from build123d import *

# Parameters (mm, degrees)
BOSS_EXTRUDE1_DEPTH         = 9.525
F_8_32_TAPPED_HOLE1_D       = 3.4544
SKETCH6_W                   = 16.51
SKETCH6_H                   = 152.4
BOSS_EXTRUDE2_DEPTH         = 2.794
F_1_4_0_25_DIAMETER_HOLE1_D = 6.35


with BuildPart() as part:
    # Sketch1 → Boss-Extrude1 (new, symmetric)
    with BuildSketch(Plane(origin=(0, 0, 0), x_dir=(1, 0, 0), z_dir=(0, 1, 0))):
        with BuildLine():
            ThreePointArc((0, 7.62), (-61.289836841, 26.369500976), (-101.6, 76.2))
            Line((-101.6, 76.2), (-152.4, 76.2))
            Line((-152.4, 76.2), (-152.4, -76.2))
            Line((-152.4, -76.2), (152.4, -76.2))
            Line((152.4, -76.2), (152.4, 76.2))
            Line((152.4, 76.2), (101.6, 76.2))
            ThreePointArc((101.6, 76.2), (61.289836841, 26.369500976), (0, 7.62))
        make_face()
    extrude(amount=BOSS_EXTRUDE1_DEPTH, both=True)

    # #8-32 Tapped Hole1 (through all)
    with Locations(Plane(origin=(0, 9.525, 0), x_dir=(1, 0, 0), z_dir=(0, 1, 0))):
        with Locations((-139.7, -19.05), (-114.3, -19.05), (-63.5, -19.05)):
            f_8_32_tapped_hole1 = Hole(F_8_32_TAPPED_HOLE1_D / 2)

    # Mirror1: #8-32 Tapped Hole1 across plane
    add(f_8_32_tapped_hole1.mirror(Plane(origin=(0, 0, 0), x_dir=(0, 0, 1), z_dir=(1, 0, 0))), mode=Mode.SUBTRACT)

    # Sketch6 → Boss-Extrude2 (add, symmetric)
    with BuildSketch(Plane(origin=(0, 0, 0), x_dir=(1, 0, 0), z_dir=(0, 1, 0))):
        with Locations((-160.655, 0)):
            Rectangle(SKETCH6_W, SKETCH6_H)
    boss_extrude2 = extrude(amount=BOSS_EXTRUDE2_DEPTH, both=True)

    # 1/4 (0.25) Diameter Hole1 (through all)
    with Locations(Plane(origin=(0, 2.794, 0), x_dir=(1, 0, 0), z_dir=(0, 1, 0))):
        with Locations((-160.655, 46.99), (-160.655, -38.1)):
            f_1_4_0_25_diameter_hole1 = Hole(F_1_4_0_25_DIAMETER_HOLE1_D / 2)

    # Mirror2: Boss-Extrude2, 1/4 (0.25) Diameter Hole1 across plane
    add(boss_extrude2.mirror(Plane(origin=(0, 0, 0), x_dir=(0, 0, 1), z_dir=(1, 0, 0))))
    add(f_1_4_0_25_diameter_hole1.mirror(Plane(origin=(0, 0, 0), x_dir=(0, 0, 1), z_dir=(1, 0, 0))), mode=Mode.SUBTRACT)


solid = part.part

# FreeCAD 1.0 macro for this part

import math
import FreeCAD as App
import Part
import Sketcher
Q = App.Units.Quantity

doc = App.newDocument("Part")
body = doc.addObject("PartDesign::Body", "Body")

# Sketch on XZ plane
sketch1 = body.newObject("Sketcher::SketchObject", "Sketch")
sketch1.AttachmentSupport = (doc.getObject("XZ_Plane"), [""])
sketch1.MapMode = "FlatFace"
sketch1.addGeometry(Part.ArcOfCircle(Part.Circle(App.Vector(0, -117, 0), App.Vector(0, 0, 1), 110), math.radians(90), math.radians(158)), False)
sketch1.addGeometry(Part.LineSegment(App.Vector(-102, -76, 0), App.Vector(-152, -76, 0)), False)
sketch1.addGeometry(Part.LineSegment(App.Vector(-152, -76, 0), App.Vector(-152, 76, 0)), False)
sketch1.addGeometry(Part.LineSegment(App.Vector(-152, 76, 0), App.Vector(152, 76, 0)), False)
sketch1.addGeometry(Part.LineSegment(App.Vector(152, 76, 0), App.Vector(152, -76, 0)), False)
sketch1.addGeometry(Part.LineSegment(App.Vector(152, -76, 0), App.Vector(102, -76, 0)), False)
sketch1.addGeometry(Part.ArcOfCircle(Part.Circle(App.Vector(0, -117, 0), App.Vector(0, 0, 1), 110), math.radians(22), math.radians(90)), False)
sketch1.addConstraint(Sketcher.Constraint("Coincident", 0, 2, 1, 1))
sketch1.addConstraint(Sketcher.Constraint("Coincident", 1, 2, 2, 1))
sketch1.addConstraint(Sketcher.Constraint("Coincident", 2, 2, 3, 1))
sketch1.addConstraint(Sketcher.Constraint("Coincident", 3, 2, 4, 1))
sketch1.addConstraint(Sketcher.Constraint("Coincident", 4, 2, 5, 1))
sketch1.addConstraint(Sketcher.Constraint("Coincident", 5, 2, 6, 1))
sketch1.addConstraint(Sketcher.Constraint("Tangent", 6, 2, 0, 1))
sketch1.addConstraint(Sketcher.Constraint("Horizontal", 1))
sketch1.addConstraint(Sketcher.Constraint("Vertical", 2))
sketch1.addConstraint(Sketcher.Constraint("Horizontal", 3))
sketch1.addConstraint(Sketcher.Constraint("Vertical", 4))
sketch1.addConstraint(Sketcher.Constraint("Horizontal", 5))
sketch1.addConstraint(Sketcher.Constraint("Equal", 0, 6))
sketch1.addConstraint(Sketcher.Constraint("Symmetric", 1, 2, 3, 2, -1, 1))
sketch1.addConstraint(Sketcher.Constraint("Symmetric", 0, 2, 5, 2, -2))
sketch1.addConstraint(Sketcher.Constraint("PointOnObject", 6, 2, -2))
sketch1.addConstraint(Sketcher.Constraint("DistanceX", 1, 2, 1, 1, Q("2 in")))
sketch1.addConstraint(Sketcher.Constraint("DistanceX", 3, 1, 3, 2, Q("12 in")))
sketch1.addConstraint(Sketcher.Constraint("DistanceY", 2, 1, 2, 2, Q("6 in")))
sketch1.addConstraint(Sketcher.Constraint("DistanceY", 6, 2, -1, 1, Q("0.3 in")))
pad1 = body.newObject("PartDesign::Pad", "Pad")
pad1.Profile = sketch1
pad1.Length = Q("0.75 in")
pad1.Midplane = True

# Sketch on XZ plane
sketch2 = body.newObject("Sketcher::SketchObject", "Sketch001")
sketch2.AttachmentSupport = (doc.getObject("XZ_Plane"), [""])
sketch2.MapMode = "FlatFace"
sketch2.AttachmentOffset = App.Placement(App.Vector(0, 0, -0.375 * 25.4), App.Rotation())
sketch2.addGeometry(Part.Circle(App.Vector(-139.7, 19.1, 0), App.Vector(0, 0, 1), 1.7), False)
sketch2.addGeometry(Part.Circle(App.Vector(-114.3, 19.1, 0), App.Vector(0, 0, 1), 1.7), False)
sketch2.addGeometry(Part.Circle(App.Vector(-63.5, 19.1, 0), App.Vector(0, 0, 1), 1.7), False)
sketch2.addConstraint(Sketcher.Constraint("Equal", 0, 1))
sketch2.addConstraint(Sketcher.Constraint("Equal", 1, 2))
sketch2.addConstraint(Sketcher.Constraint("Horizontal", 0, 3, 1, 3))
sketch2.addConstraint(Sketcher.Constraint("Horizontal", 1, 3, 2, 3))
sketch2.addConstraint(Sketcher.Constraint("Diameter", 0, Q("0.136 in")))
sketch2.addConstraint(Sketcher.Constraint("DistanceX", 0, 3, 1, 3, Q("1 in")))
sketch2.addConstraint(Sketcher.Constraint("DistanceX", 1, 3, 2, 3, Q("2 in")))
sketch2.addConstraint(Sketcher.Constraint("DistanceX", 0, 3, -1, 1, Q("5.5 in")))
sketch2.addConstraint(Sketcher.Constraint("DistanceY", -1, 1, 0, 3, Q("0.75 in")))
doc.recompute()
hole = body.newObject("PartDesign::Hole", "Hole")
hole.Profile = sketch2
hole.ThreadType = "None"
hole.Diameter = Q("0.136 in")
hole.DepthType = "ThroughAll"
hole.Reversed = True
doc.recompute()

mirrored = body.newObject("PartDesign::Mirrored", "Mirrored")
mirrored.Originals = [hole]
mirrored.MirrorPlane = (doc.getObject("YZ_Plane"), [""])
body.Tip = mirrored

# Sketch on XZ plane
sketch3 = body.newObject("Sketcher::SketchObject", "Sketch002")
sketch3.AttachmentSupport = (doc.getObject("XZ_Plane"), [""])
sketch3.MapMode = "FlatFace"
sketch3.addGeometry(Part.LineSegment(App.Vector(-169, -76, 0), App.Vector(-169, 76, 0)), False)
sketch3.addGeometry(Part.LineSegment(App.Vector(-169, 76, 0), App.Vector(-152, 76, 0)), False)
sketch3.addGeometry(Part.LineSegment(App.Vector(-152, 76, 0), App.Vector(-152, -76, 0)), False)
sketch3.addGeometry(Part.LineSegment(App.Vector(-152, -76, 0), App.Vector(-169, -76, 0)), False)
sketch3.addConstraint(Sketcher.Constraint("Coincident", 0, 2, 1, 1))
sketch3.addConstraint(Sketcher.Constraint("Coincident", 1, 2, 2, 1))
sketch3.addConstraint(Sketcher.Constraint("Coincident", 2, 2, 3, 1))
sketch3.addConstraint(Sketcher.Constraint("Coincident", 3, 2, 0, 1))
sketch3.addConstraint(Sketcher.Constraint("Vertical", 0))
sketch3.addConstraint(Sketcher.Constraint("Horizontal", 1))
sketch3.addConstraint(Sketcher.Constraint("Vertical", 2))
sketch3.addConstraint(Sketcher.Constraint("Horizontal", 3))
sketch3.addConstraint(Sketcher.Constraint("DistanceY", 0, 1, 0, 2, Q("6 in")))
sketch3.addConstraint(Sketcher.Constraint("DistanceY", -1, 1, 0, 2, Q("3 in")))
sketch3.addConstraint(Sketcher.Constraint("DistanceX", 1, 2, -1, 1, Q("6 in")))
sketch3.addConstraint(Sketcher.Constraint("DistanceX", 1, 1, 1, 2, Q("0.65 in")))
pad2 = body.newObject("PartDesign::Pad", "Pad001")
pad2.Profile = sketch3
pad2.Length = Q("0.22 in")
pad2.Midplane = True

# Sketch on XZ plane
sketch4 = body.newObject("Sketcher::SketchObject", "Sketch003")
sketch4.AttachmentSupport = (doc.getObject("XZ_Plane"), [""])
sketch4.MapMode = "FlatFace"
sketch4.AttachmentOffset = App.Placement(App.Vector(0, 0, -0.11 * 25.4), App.Rotation())
sketch4.addGeometry(Part.Circle(App.Vector(-160.7, -47, 0), App.Vector(0, 0, 1), 3.2), False)
sketch4.addGeometry(Part.Circle(App.Vector(-160.7, 38.1, 0), App.Vector(0, 0, 1), 3.2), False)
sketch4.addConstraint(Sketcher.Constraint("Equal", 0, 1))
sketch4.addConstraint(Sketcher.Constraint("Vertical", 0, 3, 1, 3))
sketch4.addConstraint(Sketcher.Constraint("Diameter", 0, Q("0.25 in")))
sketch4.addConstraint(Sketcher.Constraint("DistanceY", -1, 1, 1, 3, Q("1.5 in")))
sketch4.addConstraint(Sketcher.Constraint("DistanceY", 0, 3, -1, 1, Q("1.85 in")))
sketch4.addConstraint(Sketcher.Constraint("DistanceX", 0, 3, -1, 1, Q("6.325 in")))
doc.recompute()
hole2 = body.newObject("PartDesign::Hole", "Hole001")
hole2.Profile = sketch4
hole2.ThreadType = "None"
hole2.Diameter = Q("0.25 in")
hole2.DepthType = "ThroughAll"
hole2.Reversed = True
doc.recompute()

mirrored2 = body.newObject("PartDesign::Mirrored", "Mirrored001")
mirrored2.Originals = [pad2, hole2]
mirrored2.MirrorPlane = (doc.getObject("YZ_Plane"), [""])
body.Tip = mirrored2

doc.recompute()
